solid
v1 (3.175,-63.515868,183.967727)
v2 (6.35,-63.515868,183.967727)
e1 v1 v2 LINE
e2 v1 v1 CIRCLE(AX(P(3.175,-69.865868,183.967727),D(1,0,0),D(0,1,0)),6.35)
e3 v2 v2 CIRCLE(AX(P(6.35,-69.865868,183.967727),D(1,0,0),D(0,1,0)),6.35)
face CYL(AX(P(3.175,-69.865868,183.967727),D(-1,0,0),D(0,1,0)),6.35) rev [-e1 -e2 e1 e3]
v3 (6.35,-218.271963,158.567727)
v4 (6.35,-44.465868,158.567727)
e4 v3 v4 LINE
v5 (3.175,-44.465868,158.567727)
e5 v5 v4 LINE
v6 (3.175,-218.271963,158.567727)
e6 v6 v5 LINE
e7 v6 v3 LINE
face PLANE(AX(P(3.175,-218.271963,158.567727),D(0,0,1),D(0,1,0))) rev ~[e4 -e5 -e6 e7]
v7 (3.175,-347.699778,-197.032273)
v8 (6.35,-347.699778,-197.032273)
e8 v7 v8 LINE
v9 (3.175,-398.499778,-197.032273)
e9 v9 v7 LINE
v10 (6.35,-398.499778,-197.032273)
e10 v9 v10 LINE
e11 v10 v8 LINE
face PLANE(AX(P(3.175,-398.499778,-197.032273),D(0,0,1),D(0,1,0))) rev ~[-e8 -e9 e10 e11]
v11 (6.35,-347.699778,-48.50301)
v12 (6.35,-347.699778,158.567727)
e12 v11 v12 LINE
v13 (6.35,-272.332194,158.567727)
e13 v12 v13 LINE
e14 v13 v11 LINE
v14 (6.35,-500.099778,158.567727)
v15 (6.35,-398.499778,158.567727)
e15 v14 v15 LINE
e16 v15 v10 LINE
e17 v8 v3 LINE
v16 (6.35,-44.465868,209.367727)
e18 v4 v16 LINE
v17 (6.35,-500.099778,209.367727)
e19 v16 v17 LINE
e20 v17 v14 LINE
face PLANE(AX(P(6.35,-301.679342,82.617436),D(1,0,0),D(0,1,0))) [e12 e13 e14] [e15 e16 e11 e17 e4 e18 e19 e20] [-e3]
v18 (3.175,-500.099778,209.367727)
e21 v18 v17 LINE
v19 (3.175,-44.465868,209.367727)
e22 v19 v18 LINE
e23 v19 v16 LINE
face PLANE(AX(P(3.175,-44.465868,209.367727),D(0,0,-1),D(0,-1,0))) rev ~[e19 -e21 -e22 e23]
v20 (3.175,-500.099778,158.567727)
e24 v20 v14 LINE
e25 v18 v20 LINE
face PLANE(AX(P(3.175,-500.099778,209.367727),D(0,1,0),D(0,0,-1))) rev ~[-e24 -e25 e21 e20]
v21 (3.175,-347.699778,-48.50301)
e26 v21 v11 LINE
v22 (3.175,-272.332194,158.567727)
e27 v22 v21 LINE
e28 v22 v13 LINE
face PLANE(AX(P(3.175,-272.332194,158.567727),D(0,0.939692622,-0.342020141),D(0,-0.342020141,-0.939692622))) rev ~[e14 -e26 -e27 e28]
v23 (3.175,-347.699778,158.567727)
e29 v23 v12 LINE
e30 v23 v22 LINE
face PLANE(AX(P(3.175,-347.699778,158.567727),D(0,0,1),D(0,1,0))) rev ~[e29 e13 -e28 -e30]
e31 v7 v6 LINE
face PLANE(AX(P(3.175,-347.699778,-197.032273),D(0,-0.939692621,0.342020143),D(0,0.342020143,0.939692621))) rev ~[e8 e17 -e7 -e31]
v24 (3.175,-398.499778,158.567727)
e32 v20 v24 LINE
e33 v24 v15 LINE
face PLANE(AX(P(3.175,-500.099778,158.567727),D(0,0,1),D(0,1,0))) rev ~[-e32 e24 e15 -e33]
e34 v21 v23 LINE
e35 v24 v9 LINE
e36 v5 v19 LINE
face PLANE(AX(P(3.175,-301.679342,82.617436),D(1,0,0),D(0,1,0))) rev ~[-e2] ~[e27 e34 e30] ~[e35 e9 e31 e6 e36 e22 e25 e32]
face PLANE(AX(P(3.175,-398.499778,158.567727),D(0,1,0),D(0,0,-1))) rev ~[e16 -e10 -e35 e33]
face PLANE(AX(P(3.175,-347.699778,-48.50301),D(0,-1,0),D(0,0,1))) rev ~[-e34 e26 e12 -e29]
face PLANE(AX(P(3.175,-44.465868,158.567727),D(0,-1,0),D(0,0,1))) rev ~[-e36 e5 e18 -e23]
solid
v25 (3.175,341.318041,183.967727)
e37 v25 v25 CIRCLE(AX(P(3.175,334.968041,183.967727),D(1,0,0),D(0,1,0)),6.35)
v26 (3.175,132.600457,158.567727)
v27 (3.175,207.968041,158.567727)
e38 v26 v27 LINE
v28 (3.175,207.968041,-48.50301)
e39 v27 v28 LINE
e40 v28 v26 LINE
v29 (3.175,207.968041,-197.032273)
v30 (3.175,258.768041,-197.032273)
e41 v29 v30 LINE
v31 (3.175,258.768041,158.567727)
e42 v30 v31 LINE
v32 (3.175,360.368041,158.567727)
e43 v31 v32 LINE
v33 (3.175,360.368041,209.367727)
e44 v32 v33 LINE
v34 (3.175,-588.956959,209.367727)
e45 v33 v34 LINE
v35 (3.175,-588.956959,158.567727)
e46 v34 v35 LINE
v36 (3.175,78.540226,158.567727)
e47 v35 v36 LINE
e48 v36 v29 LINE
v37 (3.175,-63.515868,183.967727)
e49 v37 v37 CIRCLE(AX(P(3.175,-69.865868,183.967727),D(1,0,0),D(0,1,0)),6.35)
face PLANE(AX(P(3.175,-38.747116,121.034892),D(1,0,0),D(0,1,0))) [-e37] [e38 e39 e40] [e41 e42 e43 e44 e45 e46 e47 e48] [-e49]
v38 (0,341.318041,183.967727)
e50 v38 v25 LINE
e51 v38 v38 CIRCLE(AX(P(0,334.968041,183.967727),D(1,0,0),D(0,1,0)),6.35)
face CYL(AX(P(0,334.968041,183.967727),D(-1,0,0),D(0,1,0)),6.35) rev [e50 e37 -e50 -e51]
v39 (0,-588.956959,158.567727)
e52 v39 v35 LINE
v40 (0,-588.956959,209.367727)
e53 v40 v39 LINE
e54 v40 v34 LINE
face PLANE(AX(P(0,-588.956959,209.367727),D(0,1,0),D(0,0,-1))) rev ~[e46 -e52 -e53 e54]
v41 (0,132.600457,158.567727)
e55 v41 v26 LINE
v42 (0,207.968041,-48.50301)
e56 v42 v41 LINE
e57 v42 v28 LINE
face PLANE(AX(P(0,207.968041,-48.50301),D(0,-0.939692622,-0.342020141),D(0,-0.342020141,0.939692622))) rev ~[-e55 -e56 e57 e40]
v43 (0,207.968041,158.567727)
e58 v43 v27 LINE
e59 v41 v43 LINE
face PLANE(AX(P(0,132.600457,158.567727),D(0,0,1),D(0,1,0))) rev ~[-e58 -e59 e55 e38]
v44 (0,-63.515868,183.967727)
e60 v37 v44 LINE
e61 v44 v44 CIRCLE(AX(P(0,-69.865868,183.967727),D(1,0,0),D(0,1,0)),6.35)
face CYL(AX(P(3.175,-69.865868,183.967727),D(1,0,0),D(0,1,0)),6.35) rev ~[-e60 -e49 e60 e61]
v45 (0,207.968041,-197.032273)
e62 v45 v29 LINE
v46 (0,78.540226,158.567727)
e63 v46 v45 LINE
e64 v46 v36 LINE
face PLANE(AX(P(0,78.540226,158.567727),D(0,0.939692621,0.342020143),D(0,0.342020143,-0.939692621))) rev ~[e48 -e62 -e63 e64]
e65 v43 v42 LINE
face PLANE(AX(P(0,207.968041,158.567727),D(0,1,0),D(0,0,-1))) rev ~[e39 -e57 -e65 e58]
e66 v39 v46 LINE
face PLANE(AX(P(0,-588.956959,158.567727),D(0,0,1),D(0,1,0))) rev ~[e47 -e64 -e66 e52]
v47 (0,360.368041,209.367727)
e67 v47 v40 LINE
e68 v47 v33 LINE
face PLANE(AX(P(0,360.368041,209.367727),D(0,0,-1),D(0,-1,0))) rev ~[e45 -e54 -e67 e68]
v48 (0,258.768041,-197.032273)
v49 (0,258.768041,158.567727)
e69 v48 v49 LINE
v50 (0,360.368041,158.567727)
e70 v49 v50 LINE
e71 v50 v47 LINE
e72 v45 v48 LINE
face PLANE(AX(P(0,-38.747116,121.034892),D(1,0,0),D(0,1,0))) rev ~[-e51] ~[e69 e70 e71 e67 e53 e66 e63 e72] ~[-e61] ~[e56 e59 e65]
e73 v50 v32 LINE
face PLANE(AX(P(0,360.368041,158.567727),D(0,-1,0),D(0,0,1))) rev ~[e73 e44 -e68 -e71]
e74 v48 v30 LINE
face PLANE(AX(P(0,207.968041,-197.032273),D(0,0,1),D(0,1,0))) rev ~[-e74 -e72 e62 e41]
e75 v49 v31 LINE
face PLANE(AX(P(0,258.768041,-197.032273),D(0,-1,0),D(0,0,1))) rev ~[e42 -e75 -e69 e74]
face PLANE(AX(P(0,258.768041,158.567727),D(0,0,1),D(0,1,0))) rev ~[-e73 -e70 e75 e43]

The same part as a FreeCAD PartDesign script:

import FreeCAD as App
import Part
import Sketcher
Q = App.Units.Quantity


def add_polygon(sketch, points):
    """Adds a closed chain of lines whose ends are joined by coincident constraints."""
    first, n = sketch.GeometryCount, len(points)
    for a, b in zip(points, points[1:] + points[:1]):
        sketch.addGeometry(Part.LineSegment(App.Vector(*a, 0), App.Vector(*b, 0)), False)
    for i in range(n):
        sketch.addConstraint(Sketcher.Constraint("Coincident", first + i, 2, first + (i + 1) % n, 1))

doc = App.newDocument("Part")
body = doc.addObject("PartDesign::Body", "Body")

sketch1 = body.newObject("Sketcher::SketchObject", "Sketch")
sketch1.AttachmentSupport = (doc.getObject("YZ_Plane"), [""])
sketch1.MapMode = "FlatFace"
add_polygon(sketch1, [(360, 209), (-589, 209), (-589, 159), (79, 159), (208, -197), (259, -197), (259, 159), (360, 159)])
add_polygon(sketch1, [(208, -49), (133, 159), (208, 159)])
sketch1.addGeometry(Part.Circle(App.Vector(335, 184, 0), App.Vector(0, 0, 1), 6), False)
sketch1.addConstraint(Sketcher.Constraint("Horizontal", 0))
sketch1.addConstraint(Sketcher.Constraint("Vertical", 1))
sketch1.addConstraint(Sketcher.Constraint("Horizontal", 2))
sketch1.addConstraint(Sketcher.Constraint("Horizontal", 4))
sketch1.addConstraint(Sketcher.Constraint("Vertical", 5))
sketch1.addConstraint(Sketcher.Constraint("Horizontal", 6))
sketch1.addConstraint(Sketcher.Constraint("Vertical", 7))
sketch1.addConstraint(Sketcher.Constraint("Horizontal", 9))
sketch1.addConstraint(Sketcher.Constraint("Vertical", 10))
sketch1.addConstraint(Sketcher.Constraint("Parallel", 3, 8))
sketch1.addConstraint(Sketcher.Constraint("Horizontal", 2, 2, 5, 2))
sketch1.addConstraint(Sketcher.Constraint("Horizontal", 6, 2, 8, 2))
sketch1.addConstraint(Sketcher.Constraint("Vertical", 3, 2, 9, 2))
sketch1.addConstraint(Sketcher.Constraint("Equal", 4, 1))
sketch1.addConstraint(Sketcher.Constraint("Diameter", 11, Q("0.5 in")))
sketch1.addConstraint(Sketcher.Constraint("DistanceX", 4, 1, 4, 2, Q("2 in")))
sketch1.addConstraint(Sketcher.Constraint("DistanceX", 6, 1, 6, 2, Q("4 in")))
sketch1.addConstraint(Sketcher.Constraint("DistanceY", 5, 1, 5, 2, Q("14 in")))
sketch1.addConstraint(Sketcher.Constraint("Angle", 3, Q("-70 deg")))
sketch1.addConstraint(Sketcher.Constraint("DistanceY", 11, 3, 0, 2, Q("1 in")))
sketch1.addConstraint(Sketcher.Constraint("DistanceX", 3, 2, 11, 3, Q("5 in")))
sketch1.addConstraint(Sketcher.Constraint("DistanceX", 0, 2, 0, 1, Q("37.375 in")))
sketch1.addConstraint(Sketcher.Constraint("DistanceX", 9, 1, 9, 2, Q("75.367584 mm")))
sketch1.addConstraint(Sketcher.Constraint("DistanceX", -1, 1, 11, 3, Q("334.968041 mm")))
sketch1.addConstraint(Sketcher.Constraint("DistanceY", 10, 2, -1, 1, Q("48.50301 mm")))
pad1 = body.newObject("PartDesign::Pad", "Pad")
pad1.Profile = sketch1
pad1.Length = Q("0.125 in")

sketch2 = body.newObject("Sketcher::SketchObject", "Sketch001")
sketch2.AttachmentSupport = (doc.getObject("YZ_Plane"), [""])
sketch2.MapMode = "FlatFace"
sketch2.AttachmentOffset = App.Placement(App.Vector(0, 0, 0.125 * 25.4), App.Rotation())
sketch2.addGeometry(Part.Circle(App.Vector(-70, 184, 0), App.Vector(0, 0, 1), 6), False)
sketch2.addConstraint(Sketcher.Constraint("Diameter", 0, Q("0.5 in")))
sketch2.addConstraint(Sketcher.Constraint("DistanceX", 0, 3, -1, 1, Q("69.865868 mm")))
sketch2.addConstraint(Sketcher.Constraint("DistanceY", -1, 1, 0, 3, Q("183.967727 mm")))
pocket1 = body.newObject("PartDesign::Pocket", "Pocket")
pocket1.Profile = sketch2
pocket1.Length = Q("1 in")
body2 = doc.addObject("PartDesign::Body", "Body001")

sketch3 = body2.newObject("Sketcher::SketchObject", "Sketch002")
sketch3.AttachmentSupport = (doc.getObject("YZ_Plane001"), [""])
sketch3.MapMode = "FlatFace"
sketch3.AttachmentOffset = App.Placement(App.Vector(0, 0, 0.125 * 25.4), App.Rotation())
add_polygon(sketch3, [(-398, -197), (-348, -197), (-218, 159), (-44, 159), (-44, 209), (-500, 209), (-500, 159), (-398, 159)])
add_polygon(sketch3, [(-348, 159), (-272, 159), (-348, -49)])
sketch3.addGeometry(Part.Circle(App.Vector(-70, 184, 0), App.Vector(0, 0, 1), 6), False)
sketch3.addConstraint(Sketcher.Constraint("Horizontal", 0))
sketch3.addConstraint(Sketcher.Constraint("Horizontal", 2))
sketch3.addConstraint(Sketcher.Constraint("Vertical", 3))
sketch3.addConstraint(Sketcher.Constraint("Horizontal", 4))
sketch3.addConstraint(Sketcher.Constraint("Vertical", 5))
sketch3.addConstraint(Sketcher.Constraint("Horizontal", 6))
sketch3.addConstraint(Sketcher.Constraint("Vertical", 7))
sketch3.addConstraint(Sketcher.Constraint("Horizontal", 8))
sketch3.addConstraint(Sketcher.Constraint("Vertical", 10))
sketch3.addConstraint(Sketcher.Constraint("Parallel", 1, 9))
sketch3.addConstraint(Sketcher.Constraint("Horizontal", 2, 2, 5, 2))
sketch3.addConstraint(Sketcher.Constraint("Horizontal", 6, 2, 8, 2))
sketch3.addConstraint(Sketcher.Constraint("Vertical", 0, 2, 9, 2))
sketch3.addConstraint(Sketcher.Constraint("Equal", 0, 3))
sketch3.addConstraint(Sketcher.Constraint("Diameter", 11, Q("0.5 in")))
sketch3.addConstraint(Sketcher.Constraint("DistanceX", 0, 1, 0, 2, Q("2 in")))
sketch3.addConstraint(Sketcher.Constraint("DistanceX", 6, 1, 6, 2, Q("4 in")))
sketch3.addConstraint(Sketcher.Constraint("DistanceY", 7, 2, 7, 1, Q("14 in")))
sketch3.addConstraint(Sketcher.Constraint("Angle", 1, Q("70 deg")))
sketch3.addConstraint(Sketcher.Constraint("DistanceY", 0, 2, 11, 3, Q("15 in")))
sketch3.addConstraint(Sketcher.Constraint("DistanceX", 11, 3, 2, 2, Q("1 in")))
sketch3.addConstraint(Sketcher.Constraint("DistanceX", 4, 2, 4, 1, Q("455.63391 mm")))
sketch3.addConstraint(Sketcher.Constraint("DistanceX", 8, 1, 8, 2, Q("75.367584 mm")))
sketch3.addConstraint(Sketcher.Constraint("DistanceX", 11, 3, -1, 1, Q("69.865868 mm")))
sketch3.addConstraint(Sketcher.Constraint("DistanceY", 9, 2, -1, 1, Q("48.50301 mm")))
pad2 = body2.newObject("PartDesign::Pad", "Pad001")
pad2.Profile = sketch3
pad2.Length = Q("0.125 in")

doc.recompute()
